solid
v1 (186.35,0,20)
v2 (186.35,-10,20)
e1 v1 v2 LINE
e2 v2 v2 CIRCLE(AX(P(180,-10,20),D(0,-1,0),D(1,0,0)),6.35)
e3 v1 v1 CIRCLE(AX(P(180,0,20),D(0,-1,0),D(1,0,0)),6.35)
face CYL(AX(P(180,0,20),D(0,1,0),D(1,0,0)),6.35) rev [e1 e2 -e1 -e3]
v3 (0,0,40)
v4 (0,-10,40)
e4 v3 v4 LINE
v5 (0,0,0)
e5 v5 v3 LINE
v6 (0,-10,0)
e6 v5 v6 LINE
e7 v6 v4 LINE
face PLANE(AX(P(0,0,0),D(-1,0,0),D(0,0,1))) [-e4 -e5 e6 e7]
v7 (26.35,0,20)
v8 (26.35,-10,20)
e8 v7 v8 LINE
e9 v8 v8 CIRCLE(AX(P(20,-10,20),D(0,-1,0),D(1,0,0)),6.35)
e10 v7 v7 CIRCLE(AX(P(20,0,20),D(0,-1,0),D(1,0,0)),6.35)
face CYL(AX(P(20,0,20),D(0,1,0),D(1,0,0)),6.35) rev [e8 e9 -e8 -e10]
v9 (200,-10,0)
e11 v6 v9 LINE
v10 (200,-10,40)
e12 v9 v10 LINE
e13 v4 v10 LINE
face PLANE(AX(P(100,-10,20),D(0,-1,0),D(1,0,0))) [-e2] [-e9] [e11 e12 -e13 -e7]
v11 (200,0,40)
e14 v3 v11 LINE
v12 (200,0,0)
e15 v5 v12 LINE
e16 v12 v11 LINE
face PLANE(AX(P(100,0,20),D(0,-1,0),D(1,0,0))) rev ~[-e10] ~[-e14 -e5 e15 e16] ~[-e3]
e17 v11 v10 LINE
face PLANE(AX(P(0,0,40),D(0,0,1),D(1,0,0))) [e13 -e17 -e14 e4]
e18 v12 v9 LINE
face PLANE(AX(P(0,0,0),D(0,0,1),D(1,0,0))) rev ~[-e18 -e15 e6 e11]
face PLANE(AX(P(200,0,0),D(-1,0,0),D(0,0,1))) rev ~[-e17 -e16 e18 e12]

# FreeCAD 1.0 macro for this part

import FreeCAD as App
import Part
import Sketcher
from FreeCAD import Vector
Q = App.Units.Quantity


def add_polygon(sketch, points):
    """Adds a closed chain of lines whose ends are joined by coincident constraints."""
    first, n = sketch.GeometryCount, len(points)
    for a, b in zip(points, points[1:] + points[:1]):
        sketch.addGeometry(Part.LineSegment(App.Vector(*a, 0), App.Vector(*b, 0)), False)
    for i in range(n):
        sketch.addConstraint(Sketcher.Constraint("Coincident", first + i, 2, first + (i + 1) % n, 1))

doc = App.newDocument("Part")
body = doc.addObject("PartDesign::Body", "Body")

sketch1 = body.newObject("Sketcher::SketchObject", "Sketch")
sketch1.AttachmentSupport = (doc.getObject("XZ_Plane"), [""])
sketch1.MapMode = "FlatFace"
add_polygon(sketch1, [(0, 40), (0, 0), (200, 0), (200, 40)])
sketch1.addGeometry(Part.Circle(Vector(20, 20, 0), Vector(0, 0, 1), 6.35), False)
sketch1.addGeometry(Part.Circle(Vector(180, 20, 0), Vector(0, 0, 1), 6.35), False)
sketch1.addConstraint([
    Sketcher.Constraint("Vertical", 0),
    Sketcher.Constraint("Horizontal", 1),
    Sketcher.Constraint("Vertical", 2),
    Sketcher.Constraint("Horizontal", 3),
    Sketcher.Constraint("Coincident", 0, 2, -1, 1),
    Sketcher.Constraint("Equal", 4, 5),
    Sketcher.Constraint("Horizontal", 4, 3, 5, 3),
    Sketcher.Constraint("Diameter", 4, Q("12.7 mm")),
    Sketcher.Constraint("DistanceX", 1, 1, 1, 2, Q("200 mm")),
    Sketcher.Constraint("DistanceY", 0, 2, 0, 1, Q("40 mm")),
    Sketcher.Constraint("DistanceX", -1, 1, 4, 3, Q("20 mm")),
    Sketcher.Constraint("DistanceY", -1, 1, 4, 3, Q("20 mm")),
    Sketcher.Constraint("DistanceX", -1, 1, 5, 3, Q("180 mm")),
])
pad1 = body.newObject("PartDesign::Pad", "Pad")
pad1.Profile = sketch1
pad1.Length = 10

doc.recompute()
